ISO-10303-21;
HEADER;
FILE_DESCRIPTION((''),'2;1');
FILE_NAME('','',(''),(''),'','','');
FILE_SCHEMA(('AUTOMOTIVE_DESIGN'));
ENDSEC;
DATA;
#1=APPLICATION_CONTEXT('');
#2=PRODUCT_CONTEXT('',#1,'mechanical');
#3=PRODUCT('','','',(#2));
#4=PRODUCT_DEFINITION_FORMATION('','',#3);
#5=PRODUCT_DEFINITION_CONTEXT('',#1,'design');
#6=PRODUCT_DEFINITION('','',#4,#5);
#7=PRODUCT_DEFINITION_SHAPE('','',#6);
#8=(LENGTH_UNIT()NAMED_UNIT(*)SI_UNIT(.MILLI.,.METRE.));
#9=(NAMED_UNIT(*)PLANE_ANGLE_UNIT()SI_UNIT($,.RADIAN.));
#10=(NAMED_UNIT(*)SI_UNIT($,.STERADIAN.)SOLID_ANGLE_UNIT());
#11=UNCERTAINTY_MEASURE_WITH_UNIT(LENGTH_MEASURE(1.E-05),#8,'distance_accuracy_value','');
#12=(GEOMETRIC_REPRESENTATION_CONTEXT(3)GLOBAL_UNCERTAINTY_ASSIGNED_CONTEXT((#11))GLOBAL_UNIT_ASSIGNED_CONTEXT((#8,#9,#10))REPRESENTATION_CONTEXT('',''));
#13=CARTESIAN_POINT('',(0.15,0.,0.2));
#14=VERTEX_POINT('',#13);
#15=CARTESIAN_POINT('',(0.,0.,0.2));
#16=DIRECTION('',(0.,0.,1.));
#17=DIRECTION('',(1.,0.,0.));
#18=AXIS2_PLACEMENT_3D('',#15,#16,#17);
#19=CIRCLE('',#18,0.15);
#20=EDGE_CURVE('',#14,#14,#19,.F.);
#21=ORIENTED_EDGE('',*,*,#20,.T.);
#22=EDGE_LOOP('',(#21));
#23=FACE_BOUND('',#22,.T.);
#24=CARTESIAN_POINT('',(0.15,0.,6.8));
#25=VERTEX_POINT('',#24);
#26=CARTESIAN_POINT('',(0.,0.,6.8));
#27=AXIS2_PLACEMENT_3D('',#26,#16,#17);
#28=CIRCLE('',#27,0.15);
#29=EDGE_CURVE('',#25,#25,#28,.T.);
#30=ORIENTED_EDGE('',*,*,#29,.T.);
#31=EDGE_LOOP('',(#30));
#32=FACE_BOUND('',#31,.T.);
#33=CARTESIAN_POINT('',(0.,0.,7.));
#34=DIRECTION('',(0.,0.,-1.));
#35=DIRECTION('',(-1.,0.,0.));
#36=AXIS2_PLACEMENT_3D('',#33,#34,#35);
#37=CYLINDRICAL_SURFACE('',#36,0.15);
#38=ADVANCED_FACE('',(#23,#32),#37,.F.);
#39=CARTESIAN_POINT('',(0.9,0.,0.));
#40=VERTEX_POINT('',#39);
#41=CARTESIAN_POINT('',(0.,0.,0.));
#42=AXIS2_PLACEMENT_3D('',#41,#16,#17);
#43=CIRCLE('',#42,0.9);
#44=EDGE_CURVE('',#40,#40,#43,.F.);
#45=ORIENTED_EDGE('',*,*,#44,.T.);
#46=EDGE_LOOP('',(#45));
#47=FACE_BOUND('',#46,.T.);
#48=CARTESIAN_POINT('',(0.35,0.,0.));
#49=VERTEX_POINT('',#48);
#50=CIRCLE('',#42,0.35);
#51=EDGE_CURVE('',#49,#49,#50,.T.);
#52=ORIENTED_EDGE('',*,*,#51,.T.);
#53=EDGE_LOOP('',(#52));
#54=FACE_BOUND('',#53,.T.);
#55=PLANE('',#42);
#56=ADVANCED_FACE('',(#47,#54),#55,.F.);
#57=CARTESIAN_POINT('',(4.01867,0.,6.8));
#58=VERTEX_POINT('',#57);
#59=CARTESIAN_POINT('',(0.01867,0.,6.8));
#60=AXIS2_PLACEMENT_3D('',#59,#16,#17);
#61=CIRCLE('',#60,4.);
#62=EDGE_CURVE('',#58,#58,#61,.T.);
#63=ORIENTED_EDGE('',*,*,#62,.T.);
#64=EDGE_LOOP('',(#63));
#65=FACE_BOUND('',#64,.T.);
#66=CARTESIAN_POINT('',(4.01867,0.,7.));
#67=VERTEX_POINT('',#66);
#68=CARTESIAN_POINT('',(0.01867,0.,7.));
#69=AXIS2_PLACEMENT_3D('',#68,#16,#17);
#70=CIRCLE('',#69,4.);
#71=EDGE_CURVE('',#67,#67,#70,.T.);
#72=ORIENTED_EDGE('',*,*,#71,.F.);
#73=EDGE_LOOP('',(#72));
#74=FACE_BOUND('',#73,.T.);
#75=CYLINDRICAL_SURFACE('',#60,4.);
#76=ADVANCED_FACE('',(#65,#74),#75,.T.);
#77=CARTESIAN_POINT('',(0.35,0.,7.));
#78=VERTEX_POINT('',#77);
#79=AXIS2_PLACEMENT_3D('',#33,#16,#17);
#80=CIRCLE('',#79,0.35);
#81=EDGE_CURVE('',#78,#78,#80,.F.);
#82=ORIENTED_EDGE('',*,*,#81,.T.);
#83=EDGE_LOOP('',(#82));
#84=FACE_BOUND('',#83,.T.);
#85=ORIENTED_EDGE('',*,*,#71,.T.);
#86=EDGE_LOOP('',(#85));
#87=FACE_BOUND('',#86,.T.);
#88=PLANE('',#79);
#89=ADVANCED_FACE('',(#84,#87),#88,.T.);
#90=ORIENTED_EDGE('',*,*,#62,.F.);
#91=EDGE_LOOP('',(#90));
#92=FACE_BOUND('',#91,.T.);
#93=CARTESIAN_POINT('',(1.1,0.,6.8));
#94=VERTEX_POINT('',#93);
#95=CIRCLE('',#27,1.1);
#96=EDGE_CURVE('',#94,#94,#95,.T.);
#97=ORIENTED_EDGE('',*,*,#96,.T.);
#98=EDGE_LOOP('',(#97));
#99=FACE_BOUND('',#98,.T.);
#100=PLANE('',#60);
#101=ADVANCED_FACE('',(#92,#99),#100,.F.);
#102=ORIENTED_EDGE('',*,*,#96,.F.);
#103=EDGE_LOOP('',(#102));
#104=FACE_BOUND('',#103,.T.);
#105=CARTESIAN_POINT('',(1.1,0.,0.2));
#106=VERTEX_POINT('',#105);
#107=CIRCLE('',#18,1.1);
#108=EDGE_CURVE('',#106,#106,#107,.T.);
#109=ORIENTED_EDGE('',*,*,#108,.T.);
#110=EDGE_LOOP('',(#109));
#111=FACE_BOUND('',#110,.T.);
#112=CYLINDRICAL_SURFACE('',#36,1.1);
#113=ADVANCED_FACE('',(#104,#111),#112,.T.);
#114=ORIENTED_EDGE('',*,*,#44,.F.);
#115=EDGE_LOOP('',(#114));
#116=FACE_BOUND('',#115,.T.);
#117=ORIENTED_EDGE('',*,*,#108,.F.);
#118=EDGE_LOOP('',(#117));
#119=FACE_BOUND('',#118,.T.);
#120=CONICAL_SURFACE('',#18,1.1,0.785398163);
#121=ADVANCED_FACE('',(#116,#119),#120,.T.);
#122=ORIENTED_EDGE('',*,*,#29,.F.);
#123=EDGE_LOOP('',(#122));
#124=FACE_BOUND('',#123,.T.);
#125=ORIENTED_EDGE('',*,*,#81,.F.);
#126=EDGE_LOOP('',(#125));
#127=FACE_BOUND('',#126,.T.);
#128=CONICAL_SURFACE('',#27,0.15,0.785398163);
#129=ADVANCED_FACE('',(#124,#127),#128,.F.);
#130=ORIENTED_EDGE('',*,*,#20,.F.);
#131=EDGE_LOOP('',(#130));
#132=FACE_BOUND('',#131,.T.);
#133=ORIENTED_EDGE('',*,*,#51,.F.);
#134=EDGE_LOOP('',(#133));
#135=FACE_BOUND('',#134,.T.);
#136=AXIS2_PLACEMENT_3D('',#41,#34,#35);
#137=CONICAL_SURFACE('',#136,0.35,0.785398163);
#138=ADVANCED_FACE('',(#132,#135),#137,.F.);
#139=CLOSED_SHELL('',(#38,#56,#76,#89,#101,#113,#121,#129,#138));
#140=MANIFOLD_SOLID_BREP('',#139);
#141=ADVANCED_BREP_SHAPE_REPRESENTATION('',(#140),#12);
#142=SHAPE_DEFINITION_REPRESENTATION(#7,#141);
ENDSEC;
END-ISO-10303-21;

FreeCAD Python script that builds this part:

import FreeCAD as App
import Part
import Sketcher
from FreeCAD import Vector
Q = App.Units.Quantity


def edges_at(feature, points):
    """Names of the edges that pass closest to the given points."""
    edges = feature.Shape.Edges
    near = lambda p: min(range(len(edges)), key=lambda i: edges[i].distToShape(Part.Vertex(*p))[0])
    return sorted({f"Edge{near(p) + 1}" for p in points})

doc = App.newDocument("Part")
body = doc.addObject("PartDesign::Body", "Body")

# Sketch on XY plane
sketch1 = body.newObject("Sketcher::SketchObject", "Sketch")
sketch1.AttachmentSupport = (doc.getObject("XY_Plane"), [""])
sketch1.MapMode = "FlatFace"
sketch1.addGeometry([
    Part.Circle(Vector(0, 0, 0), Vector(0, 0, 1), 1.1),
    Part.Circle(Vector(0, 0, 0), Vector(0, 0, 1), 0.15),
], False)
sketch1.addConstraint([
    Sketcher.Constraint("Coincident", 0, 3, -1, 1),
    Sketcher.Constraint("Coincident", 1, 3, -1, 1),
    Sketcher.Constraint("Diameter", 0, Q("2.2 mm")),
    Sketcher.Constraint("Diameter", 1, Q("0.3 mm")),
])
pad1 = body.newObject("PartDesign::Pad", "Pad")
pad1.Profile = sketch1
pad1.Length = 7

# Sketch on XY plane
sketch2 = body.newObject("Sketcher::SketchObject", "Sketch001")
sketch2.AttachmentSupport = (doc.getObject("XY_Plane"), [""])
sketch2.MapMode = "FlatFace"
sketch2.AttachmentOffset = App.Placement(Vector(0, 0, 7), App.Rotation())
sketch2.addGeometry([
    Part.Circle(Vector(0, 0, 0), Vector(0, 0, 1), 4),
    Part.Circle(Vector(0, 0, 0), Vector(0, 0, 1), 1.1),
], False)
sketch2.addConstraint([
    Sketcher.Constraint("Coincident", 1, 3, -1, 1),
    Sketcher.Constraint("PointOnObject", 0, 3, -1),
    Sketcher.Constraint("Diameter", 0, Q("8 mm")),
    Sketcher.Constraint("Diameter", 1, Q("2.2 mm")),
    Sketcher.Constraint("DistanceX", -1, 1, 0, 3, Q("0.01867 mm")),
])
pad2 = body.newObject("PartDesign::Pad", "Pad001")
pad2.Profile = sketch2
pad2.Length = 0.2
pad2.Reversed = True
doc.recompute()

chamfer = body.newObject("PartDesign::Chamfer", "Chamfer")
chamfer.Base = (pad2, edges_at(pad2, [(-1.1, 0, 0), (-0.15, 0, 0), (-0.15, 0, 7)]))
chamfer.Size = 0.2

doc.recompute()
